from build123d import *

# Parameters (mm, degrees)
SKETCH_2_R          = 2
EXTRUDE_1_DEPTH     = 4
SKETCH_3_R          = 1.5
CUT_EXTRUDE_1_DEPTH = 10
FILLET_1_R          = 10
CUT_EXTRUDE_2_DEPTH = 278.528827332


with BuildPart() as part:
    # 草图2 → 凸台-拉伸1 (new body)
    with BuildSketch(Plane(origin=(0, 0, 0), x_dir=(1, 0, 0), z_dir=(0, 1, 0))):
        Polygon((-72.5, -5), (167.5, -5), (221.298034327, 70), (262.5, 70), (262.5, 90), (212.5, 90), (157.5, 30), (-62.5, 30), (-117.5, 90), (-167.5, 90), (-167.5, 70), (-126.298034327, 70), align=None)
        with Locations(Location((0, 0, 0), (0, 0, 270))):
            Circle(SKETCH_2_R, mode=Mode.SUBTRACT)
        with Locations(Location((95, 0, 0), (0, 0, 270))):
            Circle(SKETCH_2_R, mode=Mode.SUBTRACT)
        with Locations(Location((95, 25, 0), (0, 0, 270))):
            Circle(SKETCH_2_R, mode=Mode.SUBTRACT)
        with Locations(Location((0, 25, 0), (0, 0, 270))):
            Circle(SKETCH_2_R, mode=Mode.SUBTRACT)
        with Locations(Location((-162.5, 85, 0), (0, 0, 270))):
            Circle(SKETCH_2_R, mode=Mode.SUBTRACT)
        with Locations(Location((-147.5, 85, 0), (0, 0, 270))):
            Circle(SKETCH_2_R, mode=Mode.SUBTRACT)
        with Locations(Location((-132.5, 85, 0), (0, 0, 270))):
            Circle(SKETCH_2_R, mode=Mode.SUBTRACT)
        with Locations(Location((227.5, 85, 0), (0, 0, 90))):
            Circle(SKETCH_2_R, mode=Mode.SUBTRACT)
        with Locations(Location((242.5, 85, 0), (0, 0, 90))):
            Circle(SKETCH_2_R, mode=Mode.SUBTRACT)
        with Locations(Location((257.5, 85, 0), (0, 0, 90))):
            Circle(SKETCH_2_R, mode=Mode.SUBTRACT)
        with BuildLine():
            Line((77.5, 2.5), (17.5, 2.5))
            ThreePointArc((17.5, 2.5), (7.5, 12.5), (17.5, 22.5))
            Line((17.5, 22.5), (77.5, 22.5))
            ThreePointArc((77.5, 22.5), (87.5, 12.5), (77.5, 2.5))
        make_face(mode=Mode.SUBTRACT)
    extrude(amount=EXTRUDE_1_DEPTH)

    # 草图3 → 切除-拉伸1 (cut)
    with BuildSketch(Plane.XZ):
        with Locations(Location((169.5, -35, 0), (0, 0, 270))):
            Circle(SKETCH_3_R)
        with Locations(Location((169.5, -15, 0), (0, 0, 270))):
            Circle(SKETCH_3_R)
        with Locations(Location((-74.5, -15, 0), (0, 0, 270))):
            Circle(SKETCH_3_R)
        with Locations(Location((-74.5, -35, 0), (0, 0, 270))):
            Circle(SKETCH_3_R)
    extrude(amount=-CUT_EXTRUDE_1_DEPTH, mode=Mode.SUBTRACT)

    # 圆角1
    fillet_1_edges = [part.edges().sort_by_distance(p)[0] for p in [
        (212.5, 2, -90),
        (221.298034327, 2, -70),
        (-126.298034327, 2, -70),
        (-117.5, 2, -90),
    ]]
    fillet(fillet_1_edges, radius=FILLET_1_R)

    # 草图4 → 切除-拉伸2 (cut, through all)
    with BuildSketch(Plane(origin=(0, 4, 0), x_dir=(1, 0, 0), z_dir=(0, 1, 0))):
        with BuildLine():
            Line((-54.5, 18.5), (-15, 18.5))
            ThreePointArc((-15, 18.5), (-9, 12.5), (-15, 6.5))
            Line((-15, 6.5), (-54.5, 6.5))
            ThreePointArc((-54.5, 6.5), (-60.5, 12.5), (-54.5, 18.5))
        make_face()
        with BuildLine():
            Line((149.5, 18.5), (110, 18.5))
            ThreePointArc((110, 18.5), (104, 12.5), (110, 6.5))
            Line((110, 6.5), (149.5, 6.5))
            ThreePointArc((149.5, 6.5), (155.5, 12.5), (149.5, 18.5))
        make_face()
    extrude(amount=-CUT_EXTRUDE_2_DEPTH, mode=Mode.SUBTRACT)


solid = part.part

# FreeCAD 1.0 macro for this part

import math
import FreeCAD as App
import Part
import Sketcher
from FreeCAD import Vector


def edges_at(feature, points):
    """Names of the edges that pass closest to the given points."""
    edges = feature.Shape.Edges
    near = lambda p: min(range(len(edges)), key=lambda i: edges[i].distToShape(Part.Vertex(*p))[0])
    return sorted({f"Edge{near(p) + 1}" for p in points})


def add_polygon(sketch, points):
    """Adds a closed chain of lines whose ends are joined by coincident constraints."""
    first, n = sketch.GeometryCount, len(points)
    for a, b in zip(points, points[1:] + points[:1]):
        sketch.addGeometry(Part.LineSegment(App.Vector(*a, 0), App.Vector(*b, 0)), False)
    for i in range(n):
        sketch.addConstraint(Sketcher.Constraint("Coincident", first + i, 2, first + (i + 1) % n, 1))

doc = App.newDocument("Part")
body = doc.addObject("PartDesign::Body", "Body")

sketch1 = body.newObject("Sketcher::SketchObject", "Sketch")
sketch1.AttachmentSupport = (doc.getObject("XZ_Plane"), [""])
sketch1.MapMode = "FlatFace"
add_polygon(sketch1, [(-72.5, 5), (167.5, 5), (221.3, -70), (262.5, -70), (262.5, -90), (212.5, -90), (157.5, -30), (-62.5, -30), (-117.5, -90), (-167.5, -90), (-167.5, -70), (-126.3, -70)])
sketch1.addGeometry(Part.Circle(Vector(0, 0, 0), Vector(0, 0, 1), 2), False)
sketch1.addGeometry(Part.Circle(Vector(0, -25, 0), Vector(0, 0, 1), 2), False)
sketch1.addGeometry(Part.Circle(Vector(95, 0, 0), Vector(0, 0, 1), 2), False)
sketch1.addGeometry(Part.ArcOfCircle(Part.Circle(Vector(77.5, -12.5, 0), Vector(0, 0, 1), 10), math.radians(-90), math.radians(90)), False)
sketch1.addGeometry(Part.LineSegment(Vector(77.5, -2.5, 0), Vector(17.5, -2.5, 0)), False)
sketch1.addGeometry(Part.ArcOfCircle(Part.Circle(Vector(17.5, -12.5, 0), Vector(0, 0, 1), 10), math.radians(90), math.radians(270)), False)
sketch1.addGeometry(Part.LineSegment(Vector(17.5, -22.5, 0), Vector(77.5, -22.5, 0)), False)
sketch1.addGeometry(Part.Circle(Vector(95, -25, 0), Vector(0, 0, 1), 2), False)
sketch1.addGeometry(Part.Circle(Vector(-162.5, -85, 0), Vector(0, 0, 1), 2), False)
sketch1.addGeometry(Part.Circle(Vector(-147.5, -85, 0), Vector(0, 0, 1), 2), False)
sketch1.addGeometry(Part.Circle(Vector(-132.5, -85, 0), Vector(0, 0, 1), 2), False)
sketch1.addGeometry(Part.Circle(Vector(227.5, -85, 0), Vector(0, 0, 1), 2), False)
sketch1.addGeometry(Part.Circle(Vector(242.5, -85, 0), Vector(0, 0, 1), 2), False)
sketch1.addGeometry(Part.Circle(Vector(257.5, -85, 0), Vector(0, 0, 1), 2), False)
sketch1.addConstraint(Sketcher.Constraint("Tangent", 15, 2, 16, 1))
sketch1.addConstraint(Sketcher.Constraint("Tangent", 16, 2, 17, 1))
sketch1.addConstraint(Sketcher.Constraint("Tangent", 17, 2, 18, 1))
sketch1.addConstraint(Sketcher.Constraint("Tangent", 18, 2, 15, 1))
sketch1.addConstraint(Sketcher.Constraint("Horizontal", 0))
sketch1.addConstraint(Sketcher.Constraint("Horizontal", 2))
sketch1.addConstraint(Sketcher.Constraint("Vertical", 3))
sketch1.addConstraint(Sketcher.Constraint("Horizontal", 4))
sketch1.addConstraint(Sketcher.Constraint("Horizontal", 6))
sketch1.addConstraint(Sketcher.Constraint("Horizontal", 8))
sketch1.addConstraint(Sketcher.Constraint("Vertical", 9))
sketch1.addConstraint(Sketcher.Constraint("Horizontal", 10))
sketch1.addConstraint(Sketcher.Constraint("Horizontal", 16))
sketch1.addConstraint(Sketcher.Constraint("Horizontal", 18))
sketch1.addConstraint(Sketcher.Constraint("Coincident", 12, 3, -1, 1))
sketch1.addConstraint(Sketcher.Constraint("Equal", 12, 13))
sketch1.addConstraint(Sketcher.Constraint("Equal", 13, 14))
sketch1.addConstraint(Sketcher.Constraint("Equal", 14, 19))
sketch1.addConstraint(Sketcher.Constraint("Equal", 19, 20))
sketch1.addConstraint(Sketcher.Constraint("Equal", 20, 21))
sketch1.addConstraint(Sketcher.Constraint("Equal", 21, 22))
sketch1.addConstraint(Sketcher.Constraint("Equal", 22, 23))
sketch1.addConstraint(Sketcher.Constraint("Equal", 23, 24))
sketch1.addConstraint(Sketcher.Constraint("Equal", 24, 25))
sketch1.addConstraint(Sketcher.Constraint("PointOnObject", 13, 3, -2))
sketch1.addConstraint(Sketcher.Constraint("PointOnObject", 14, 3, -1))
sketch1.addConstraint(Sketcher.Constraint("Horizontal", 13, 3, 19, 3))
sketch1.addConstraint(Sketcher.Constraint("Horizontal", 20, 3, 21, 3))
sketch1.addConstraint(Sketcher.Constraint("Horizontal", 21, 3, 22, 3))
sketch1.addConstraint(Sketcher.Constraint("Horizontal", 22, 3, 23, 3))
sketch1.addConstraint(Sketcher.Constraint("Horizontal", 23, 3, 24, 3))
sketch1.addConstraint(Sketcher.Constraint("Horizontal", 24, 3, 25, 3))
sketch1.addConstraint(Sketcher.Constraint("Horizontal", 4, 2, 7, 2))
sketch1.addConstraint(Sketcher.Constraint("Horizontal", 2, 2, 9, 2))
sketch1.addConstraint(Sketcher.Constraint("Vertical", 14, 3, 19, 3))
sketch1.addConstraint(Sketcher.Constraint("Equal", 4, 8))
sketch1.addConstraint(Sketcher.Constraint("Equal", 2, 10))
sketch1.addConstraint(Sketcher.Constraint("Equal", 5, 7))
sketch1.addConstraint(Sketcher.Constraint("Equal", 1, 11))
sketch1.addConstraint(Sketcher.Constraint("Diameter", 12, 4.0))
sketch1.addConstraint(Sketcher.Constraint("Radius", 15, 10.0))
sketch1.addConstraint(Sketcher.Constraint("DistanceX", 0, 1, 0, 2, 240.0))
sketch1.addConstraint(Sketcher.Constraint("DistanceX", 4, 2, 4, 1, 50.0))
sketch1.addConstraint(Sketcher.Constraint("DistanceX", 6, 2, 6, 1, 220.0))
sketch1.addConstraint(Sketcher.Constraint("DistanceX", 16, 2, 16, 1, 60.0))
sketch1.addConstraint(Sketcher.Constraint("DistanceY", 3, 2, 3, 1, 20.0))
sketch1.addConstraint(Sketcher.Constraint("DistanceY", 13, 3, -1, 1, 25.0))
sketch1.addConstraint(Sketcher.Constraint("DistanceX", -1, 1, 14, 3, 95.0))
sketch1.addConstraint(Sketcher.Constraint("DistanceY", 20, 3, -1, 1, 85.0))
sketch1.addConstraint(Sketcher.Constraint("DistanceY", -1, 1, 0, 2, 5.0))
sketch1.addConstraint(Sketcher.Constraint("DistanceY", 1, 2, -1, 1, 70.0))
sketch1.addConstraint(Sketcher.Constraint("DistanceY", 5, 2, -1, 1, 30.0))
sketch1.addConstraint(Sketcher.Constraint("DistanceX", 20, 3, 17, 3, 180.0))
sketch1.addConstraint(Sketcher.Constraint("DistanceX", 20, 3, 21, 3, 15.0))
sketch1.addConstraint(Sketcher.Constraint("DistanceX", 21, 3, 22, 3, 15.0))
sketch1.addConstraint(Sketcher.Constraint("DistanceX", 15, 3, 23, 3, 150.0))
sketch1.addConstraint(Sketcher.Constraint("DistanceX", 23, 3, 24, 3, 15.0))
sketch1.addConstraint(Sketcher.Constraint("DistanceX", 24, 3, 25, 3, 15.0))
sketch1.addConstraint(Sketcher.Constraint("DistanceX", 15, 3, 0, 2, 90.0))
sketch1.addConstraint(Sketcher.Constraint("DistanceX", 25, 3, 2, 2, 5.0))
sketch1.addConstraint(Sketcher.Constraint("DistanceX", -1, 1, 15, 3, 77.5))
sketch1.addConstraint(Sketcher.Constraint("DistanceY", 15, 3, -1, 1, 12.5))
sketch1.addConstraint(Sketcher.Constraint("DistanceX", 2, 1, 2, 2, 41.201966))
pad1 = body.newObject("PartDesign::Pad", "Pad")
pad1.Profile = sketch1
pad1.Length = 4
pad1.Reversed = True

sketch2 = body.newObject("Sketcher::SketchObject", "Sketch001")
sketch2.AttachmentSupport = (doc.getObject("XZ_Plane"), [""])
sketch2.MapMode = "FlatFace"
sketch2.addGeometry(Part.Circle(Vector(169.5, -35, 0), Vector(0, 0, 1), 1.5), False)
sketch2.addGeometry(Part.Circle(Vector(169.5, -15, 0), Vector(0, 0, 1), 1.5), False)
sketch2.addGeometry(Part.Circle(Vector(-74.5, -15, 0), Vector(0, 0, 1), 1.5), False)
sketch2.addGeometry(Part.Circle(Vector(-74.5, -35, 0), Vector(0, 0, 1), 1.5), False)
sketch2.addConstraint(Sketcher.Constraint("Equal", 0, 1))
sketch2.addConstraint(Sketcher.Constraint("Equal", 1, 2))
sketch2.addConstraint(Sketcher.Constraint("Equal", 2, 3))
sketch2.addConstraint(Sketcher.Constraint("Horizontal", 1, 3, 2, 3))
sketch2.addConstraint(Sketcher.Constraint("Horizontal", 0, 3, 3, 3))
sketch2.addConstraint(Sketcher.Constraint("Vertical", 0, 3, 1, 3))
sketch2.addConstraint(Sketcher.Constraint("Vertical", 2, 3, 3, 3))
sketch2.addConstraint(Sketcher.Constraint("Diameter", 0, 3.0))
sketch2.addConstraint(Sketcher.Constraint("DistanceY", 0, 3, -1, 1, 35.0))
sketch2.addConstraint(Sketcher.Constraint("DistanceY", 1, 3, -1, 1, 15.0))
sketch2.addConstraint(Sketcher.Constraint("DistanceX", 2, 3, 1, 3, 244.0))
sketch2.addConstraint(Sketcher.Constraint("DistanceX", -1, 1, 0, 3, 169.5))
pocket1 = body.newObject("PartDesign::Pocket", "Pocket")
pocket1.Profile = sketch2
pocket1.Length = 10
doc.recompute()

fillet = body.newObject("PartDesign::Fillet", "Fillet")
fillet.Base = (pocket1, edges_at(pocket1, [
    (212.5, 2, -90),
    (221.298, 2, -70),
    (-126.298, 2, -70),
    (-117.5, 2, -90),
]))
fillet.Radius = 10

sketch3 = body.newObject("Sketcher::SketchObject", "Sketch002")
sketch3.AttachmentSupport = (doc.getObject("XZ_Plane"), [""])
sketch3.MapMode = "FlatFace"
sketch3.AttachmentOffset = App.Placement(Vector(0, 0, -4), App.Rotation())
sketch3.addGeometry(Part.LineSegment(Vector(-15, -18, 0), Vector(-54, -18, 0)), False)
sketch3.addGeometry(Part.ArcOfCircle(Part.Circle(Vector(-54, -12, 0), Vector(0, 0, 1), 6), math.radians(90), math.radians(270)), False)
sketch3.addGeometry(Part.LineSegment(Vector(-54, -6, 0), Vector(-15, -6, 0)), False)
sketch3.addGeometry(Part.ArcOfCircle(Part.Circle(Vector(-15, -12, 0), Vector(0, 0, 1), 6), math.radians(-90), math.radians(90)), False)
sketch3.addGeometry(Part.LineSegment(Vector(150, -18, 0), Vector(110, -18, 0)), False)
sketch3.addGeometry(Part.ArcOfCircle(Part.Circle(Vector(110, -12, 0), Vector(0, 0, 1), 6), math.radians(90), math.radians(270)), False)
sketch3.addGeometry(Part.LineSegment(Vector(110, -6, 0), Vector(150, -6, 0)), False)
sketch3.addGeometry(Part.ArcOfCircle(Part.Circle(Vector(150, -12, 0), Vector(0, 0, 1), 6), math.radians(-90), math.radians(90)), False)
sketch3.addConstraint(Sketcher.Constraint("Tangent", 0, 2, 1, 2))
sketch3.addConstraint(Sketcher.Constraint("Tangent", 1, 1, 2, 1))
sketch3.addConstraint(Sketcher.Constraint("Tangent", 2, 2, 3, 2))
sketch3.addConstraint(Sketcher.Constraint("Tangent", 3, 1, 0, 1))
sketch3.addConstraint(Sketcher.Constraint("Tangent", 4, 2, 5, 2))
sketch3.addConstraint(Sketcher.Constraint("Tangent", 5, 1, 6, 1))
sketch3.addConstraint(Sketcher.Constraint("Tangent", 6, 2, 7, 2))
sketch3.addConstraint(Sketcher.Constraint("Tangent", 7, 1, 4, 1))
sketch3.addConstraint(Sketcher.Constraint("Horizontal", 0))
sketch3.addConstraint(Sketcher.Constraint("Horizontal", 2))
sketch3.addConstraint(Sketcher.Constraint("Horizontal", 4))
sketch3.addConstraint(Sketcher.Constraint("Horizontal", 6))
sketch3.addConstraint(Sketcher.Constraint("Equal", 3, 5))
sketch3.addConstraint(Sketcher.Constraint("Horizontal", 3, 3, 5, 3))
sketch3.addConstraint(Sketcher.Constraint("Equal", 2, 4))
sketch3.addConstraint(Sketcher.Constraint("Radius", 1, 6.0))
sketch3.addConstraint(Sketcher.Constraint("DistanceX", 0, 2, 0, 1, 39.5))
sketch3.addConstraint(Sketcher.Constraint("DistanceX", 3, 3, -1, 1, 15.0))
sketch3.addConstraint(Sketcher.Constraint("DistanceX", -1, 1, 5, 3, 110.0))
sketch3.addConstraint(Sketcher.Constraint("DistanceY", 1, 3, -1, 1, 12.5))
pocket2 = body.newObject("PartDesign::Pocket", "Pocket001")
pocket2.Profile = sketch3
pocket2.Type = "ThroughAll"
pocket2.Reversed = True

doc.recompute()
